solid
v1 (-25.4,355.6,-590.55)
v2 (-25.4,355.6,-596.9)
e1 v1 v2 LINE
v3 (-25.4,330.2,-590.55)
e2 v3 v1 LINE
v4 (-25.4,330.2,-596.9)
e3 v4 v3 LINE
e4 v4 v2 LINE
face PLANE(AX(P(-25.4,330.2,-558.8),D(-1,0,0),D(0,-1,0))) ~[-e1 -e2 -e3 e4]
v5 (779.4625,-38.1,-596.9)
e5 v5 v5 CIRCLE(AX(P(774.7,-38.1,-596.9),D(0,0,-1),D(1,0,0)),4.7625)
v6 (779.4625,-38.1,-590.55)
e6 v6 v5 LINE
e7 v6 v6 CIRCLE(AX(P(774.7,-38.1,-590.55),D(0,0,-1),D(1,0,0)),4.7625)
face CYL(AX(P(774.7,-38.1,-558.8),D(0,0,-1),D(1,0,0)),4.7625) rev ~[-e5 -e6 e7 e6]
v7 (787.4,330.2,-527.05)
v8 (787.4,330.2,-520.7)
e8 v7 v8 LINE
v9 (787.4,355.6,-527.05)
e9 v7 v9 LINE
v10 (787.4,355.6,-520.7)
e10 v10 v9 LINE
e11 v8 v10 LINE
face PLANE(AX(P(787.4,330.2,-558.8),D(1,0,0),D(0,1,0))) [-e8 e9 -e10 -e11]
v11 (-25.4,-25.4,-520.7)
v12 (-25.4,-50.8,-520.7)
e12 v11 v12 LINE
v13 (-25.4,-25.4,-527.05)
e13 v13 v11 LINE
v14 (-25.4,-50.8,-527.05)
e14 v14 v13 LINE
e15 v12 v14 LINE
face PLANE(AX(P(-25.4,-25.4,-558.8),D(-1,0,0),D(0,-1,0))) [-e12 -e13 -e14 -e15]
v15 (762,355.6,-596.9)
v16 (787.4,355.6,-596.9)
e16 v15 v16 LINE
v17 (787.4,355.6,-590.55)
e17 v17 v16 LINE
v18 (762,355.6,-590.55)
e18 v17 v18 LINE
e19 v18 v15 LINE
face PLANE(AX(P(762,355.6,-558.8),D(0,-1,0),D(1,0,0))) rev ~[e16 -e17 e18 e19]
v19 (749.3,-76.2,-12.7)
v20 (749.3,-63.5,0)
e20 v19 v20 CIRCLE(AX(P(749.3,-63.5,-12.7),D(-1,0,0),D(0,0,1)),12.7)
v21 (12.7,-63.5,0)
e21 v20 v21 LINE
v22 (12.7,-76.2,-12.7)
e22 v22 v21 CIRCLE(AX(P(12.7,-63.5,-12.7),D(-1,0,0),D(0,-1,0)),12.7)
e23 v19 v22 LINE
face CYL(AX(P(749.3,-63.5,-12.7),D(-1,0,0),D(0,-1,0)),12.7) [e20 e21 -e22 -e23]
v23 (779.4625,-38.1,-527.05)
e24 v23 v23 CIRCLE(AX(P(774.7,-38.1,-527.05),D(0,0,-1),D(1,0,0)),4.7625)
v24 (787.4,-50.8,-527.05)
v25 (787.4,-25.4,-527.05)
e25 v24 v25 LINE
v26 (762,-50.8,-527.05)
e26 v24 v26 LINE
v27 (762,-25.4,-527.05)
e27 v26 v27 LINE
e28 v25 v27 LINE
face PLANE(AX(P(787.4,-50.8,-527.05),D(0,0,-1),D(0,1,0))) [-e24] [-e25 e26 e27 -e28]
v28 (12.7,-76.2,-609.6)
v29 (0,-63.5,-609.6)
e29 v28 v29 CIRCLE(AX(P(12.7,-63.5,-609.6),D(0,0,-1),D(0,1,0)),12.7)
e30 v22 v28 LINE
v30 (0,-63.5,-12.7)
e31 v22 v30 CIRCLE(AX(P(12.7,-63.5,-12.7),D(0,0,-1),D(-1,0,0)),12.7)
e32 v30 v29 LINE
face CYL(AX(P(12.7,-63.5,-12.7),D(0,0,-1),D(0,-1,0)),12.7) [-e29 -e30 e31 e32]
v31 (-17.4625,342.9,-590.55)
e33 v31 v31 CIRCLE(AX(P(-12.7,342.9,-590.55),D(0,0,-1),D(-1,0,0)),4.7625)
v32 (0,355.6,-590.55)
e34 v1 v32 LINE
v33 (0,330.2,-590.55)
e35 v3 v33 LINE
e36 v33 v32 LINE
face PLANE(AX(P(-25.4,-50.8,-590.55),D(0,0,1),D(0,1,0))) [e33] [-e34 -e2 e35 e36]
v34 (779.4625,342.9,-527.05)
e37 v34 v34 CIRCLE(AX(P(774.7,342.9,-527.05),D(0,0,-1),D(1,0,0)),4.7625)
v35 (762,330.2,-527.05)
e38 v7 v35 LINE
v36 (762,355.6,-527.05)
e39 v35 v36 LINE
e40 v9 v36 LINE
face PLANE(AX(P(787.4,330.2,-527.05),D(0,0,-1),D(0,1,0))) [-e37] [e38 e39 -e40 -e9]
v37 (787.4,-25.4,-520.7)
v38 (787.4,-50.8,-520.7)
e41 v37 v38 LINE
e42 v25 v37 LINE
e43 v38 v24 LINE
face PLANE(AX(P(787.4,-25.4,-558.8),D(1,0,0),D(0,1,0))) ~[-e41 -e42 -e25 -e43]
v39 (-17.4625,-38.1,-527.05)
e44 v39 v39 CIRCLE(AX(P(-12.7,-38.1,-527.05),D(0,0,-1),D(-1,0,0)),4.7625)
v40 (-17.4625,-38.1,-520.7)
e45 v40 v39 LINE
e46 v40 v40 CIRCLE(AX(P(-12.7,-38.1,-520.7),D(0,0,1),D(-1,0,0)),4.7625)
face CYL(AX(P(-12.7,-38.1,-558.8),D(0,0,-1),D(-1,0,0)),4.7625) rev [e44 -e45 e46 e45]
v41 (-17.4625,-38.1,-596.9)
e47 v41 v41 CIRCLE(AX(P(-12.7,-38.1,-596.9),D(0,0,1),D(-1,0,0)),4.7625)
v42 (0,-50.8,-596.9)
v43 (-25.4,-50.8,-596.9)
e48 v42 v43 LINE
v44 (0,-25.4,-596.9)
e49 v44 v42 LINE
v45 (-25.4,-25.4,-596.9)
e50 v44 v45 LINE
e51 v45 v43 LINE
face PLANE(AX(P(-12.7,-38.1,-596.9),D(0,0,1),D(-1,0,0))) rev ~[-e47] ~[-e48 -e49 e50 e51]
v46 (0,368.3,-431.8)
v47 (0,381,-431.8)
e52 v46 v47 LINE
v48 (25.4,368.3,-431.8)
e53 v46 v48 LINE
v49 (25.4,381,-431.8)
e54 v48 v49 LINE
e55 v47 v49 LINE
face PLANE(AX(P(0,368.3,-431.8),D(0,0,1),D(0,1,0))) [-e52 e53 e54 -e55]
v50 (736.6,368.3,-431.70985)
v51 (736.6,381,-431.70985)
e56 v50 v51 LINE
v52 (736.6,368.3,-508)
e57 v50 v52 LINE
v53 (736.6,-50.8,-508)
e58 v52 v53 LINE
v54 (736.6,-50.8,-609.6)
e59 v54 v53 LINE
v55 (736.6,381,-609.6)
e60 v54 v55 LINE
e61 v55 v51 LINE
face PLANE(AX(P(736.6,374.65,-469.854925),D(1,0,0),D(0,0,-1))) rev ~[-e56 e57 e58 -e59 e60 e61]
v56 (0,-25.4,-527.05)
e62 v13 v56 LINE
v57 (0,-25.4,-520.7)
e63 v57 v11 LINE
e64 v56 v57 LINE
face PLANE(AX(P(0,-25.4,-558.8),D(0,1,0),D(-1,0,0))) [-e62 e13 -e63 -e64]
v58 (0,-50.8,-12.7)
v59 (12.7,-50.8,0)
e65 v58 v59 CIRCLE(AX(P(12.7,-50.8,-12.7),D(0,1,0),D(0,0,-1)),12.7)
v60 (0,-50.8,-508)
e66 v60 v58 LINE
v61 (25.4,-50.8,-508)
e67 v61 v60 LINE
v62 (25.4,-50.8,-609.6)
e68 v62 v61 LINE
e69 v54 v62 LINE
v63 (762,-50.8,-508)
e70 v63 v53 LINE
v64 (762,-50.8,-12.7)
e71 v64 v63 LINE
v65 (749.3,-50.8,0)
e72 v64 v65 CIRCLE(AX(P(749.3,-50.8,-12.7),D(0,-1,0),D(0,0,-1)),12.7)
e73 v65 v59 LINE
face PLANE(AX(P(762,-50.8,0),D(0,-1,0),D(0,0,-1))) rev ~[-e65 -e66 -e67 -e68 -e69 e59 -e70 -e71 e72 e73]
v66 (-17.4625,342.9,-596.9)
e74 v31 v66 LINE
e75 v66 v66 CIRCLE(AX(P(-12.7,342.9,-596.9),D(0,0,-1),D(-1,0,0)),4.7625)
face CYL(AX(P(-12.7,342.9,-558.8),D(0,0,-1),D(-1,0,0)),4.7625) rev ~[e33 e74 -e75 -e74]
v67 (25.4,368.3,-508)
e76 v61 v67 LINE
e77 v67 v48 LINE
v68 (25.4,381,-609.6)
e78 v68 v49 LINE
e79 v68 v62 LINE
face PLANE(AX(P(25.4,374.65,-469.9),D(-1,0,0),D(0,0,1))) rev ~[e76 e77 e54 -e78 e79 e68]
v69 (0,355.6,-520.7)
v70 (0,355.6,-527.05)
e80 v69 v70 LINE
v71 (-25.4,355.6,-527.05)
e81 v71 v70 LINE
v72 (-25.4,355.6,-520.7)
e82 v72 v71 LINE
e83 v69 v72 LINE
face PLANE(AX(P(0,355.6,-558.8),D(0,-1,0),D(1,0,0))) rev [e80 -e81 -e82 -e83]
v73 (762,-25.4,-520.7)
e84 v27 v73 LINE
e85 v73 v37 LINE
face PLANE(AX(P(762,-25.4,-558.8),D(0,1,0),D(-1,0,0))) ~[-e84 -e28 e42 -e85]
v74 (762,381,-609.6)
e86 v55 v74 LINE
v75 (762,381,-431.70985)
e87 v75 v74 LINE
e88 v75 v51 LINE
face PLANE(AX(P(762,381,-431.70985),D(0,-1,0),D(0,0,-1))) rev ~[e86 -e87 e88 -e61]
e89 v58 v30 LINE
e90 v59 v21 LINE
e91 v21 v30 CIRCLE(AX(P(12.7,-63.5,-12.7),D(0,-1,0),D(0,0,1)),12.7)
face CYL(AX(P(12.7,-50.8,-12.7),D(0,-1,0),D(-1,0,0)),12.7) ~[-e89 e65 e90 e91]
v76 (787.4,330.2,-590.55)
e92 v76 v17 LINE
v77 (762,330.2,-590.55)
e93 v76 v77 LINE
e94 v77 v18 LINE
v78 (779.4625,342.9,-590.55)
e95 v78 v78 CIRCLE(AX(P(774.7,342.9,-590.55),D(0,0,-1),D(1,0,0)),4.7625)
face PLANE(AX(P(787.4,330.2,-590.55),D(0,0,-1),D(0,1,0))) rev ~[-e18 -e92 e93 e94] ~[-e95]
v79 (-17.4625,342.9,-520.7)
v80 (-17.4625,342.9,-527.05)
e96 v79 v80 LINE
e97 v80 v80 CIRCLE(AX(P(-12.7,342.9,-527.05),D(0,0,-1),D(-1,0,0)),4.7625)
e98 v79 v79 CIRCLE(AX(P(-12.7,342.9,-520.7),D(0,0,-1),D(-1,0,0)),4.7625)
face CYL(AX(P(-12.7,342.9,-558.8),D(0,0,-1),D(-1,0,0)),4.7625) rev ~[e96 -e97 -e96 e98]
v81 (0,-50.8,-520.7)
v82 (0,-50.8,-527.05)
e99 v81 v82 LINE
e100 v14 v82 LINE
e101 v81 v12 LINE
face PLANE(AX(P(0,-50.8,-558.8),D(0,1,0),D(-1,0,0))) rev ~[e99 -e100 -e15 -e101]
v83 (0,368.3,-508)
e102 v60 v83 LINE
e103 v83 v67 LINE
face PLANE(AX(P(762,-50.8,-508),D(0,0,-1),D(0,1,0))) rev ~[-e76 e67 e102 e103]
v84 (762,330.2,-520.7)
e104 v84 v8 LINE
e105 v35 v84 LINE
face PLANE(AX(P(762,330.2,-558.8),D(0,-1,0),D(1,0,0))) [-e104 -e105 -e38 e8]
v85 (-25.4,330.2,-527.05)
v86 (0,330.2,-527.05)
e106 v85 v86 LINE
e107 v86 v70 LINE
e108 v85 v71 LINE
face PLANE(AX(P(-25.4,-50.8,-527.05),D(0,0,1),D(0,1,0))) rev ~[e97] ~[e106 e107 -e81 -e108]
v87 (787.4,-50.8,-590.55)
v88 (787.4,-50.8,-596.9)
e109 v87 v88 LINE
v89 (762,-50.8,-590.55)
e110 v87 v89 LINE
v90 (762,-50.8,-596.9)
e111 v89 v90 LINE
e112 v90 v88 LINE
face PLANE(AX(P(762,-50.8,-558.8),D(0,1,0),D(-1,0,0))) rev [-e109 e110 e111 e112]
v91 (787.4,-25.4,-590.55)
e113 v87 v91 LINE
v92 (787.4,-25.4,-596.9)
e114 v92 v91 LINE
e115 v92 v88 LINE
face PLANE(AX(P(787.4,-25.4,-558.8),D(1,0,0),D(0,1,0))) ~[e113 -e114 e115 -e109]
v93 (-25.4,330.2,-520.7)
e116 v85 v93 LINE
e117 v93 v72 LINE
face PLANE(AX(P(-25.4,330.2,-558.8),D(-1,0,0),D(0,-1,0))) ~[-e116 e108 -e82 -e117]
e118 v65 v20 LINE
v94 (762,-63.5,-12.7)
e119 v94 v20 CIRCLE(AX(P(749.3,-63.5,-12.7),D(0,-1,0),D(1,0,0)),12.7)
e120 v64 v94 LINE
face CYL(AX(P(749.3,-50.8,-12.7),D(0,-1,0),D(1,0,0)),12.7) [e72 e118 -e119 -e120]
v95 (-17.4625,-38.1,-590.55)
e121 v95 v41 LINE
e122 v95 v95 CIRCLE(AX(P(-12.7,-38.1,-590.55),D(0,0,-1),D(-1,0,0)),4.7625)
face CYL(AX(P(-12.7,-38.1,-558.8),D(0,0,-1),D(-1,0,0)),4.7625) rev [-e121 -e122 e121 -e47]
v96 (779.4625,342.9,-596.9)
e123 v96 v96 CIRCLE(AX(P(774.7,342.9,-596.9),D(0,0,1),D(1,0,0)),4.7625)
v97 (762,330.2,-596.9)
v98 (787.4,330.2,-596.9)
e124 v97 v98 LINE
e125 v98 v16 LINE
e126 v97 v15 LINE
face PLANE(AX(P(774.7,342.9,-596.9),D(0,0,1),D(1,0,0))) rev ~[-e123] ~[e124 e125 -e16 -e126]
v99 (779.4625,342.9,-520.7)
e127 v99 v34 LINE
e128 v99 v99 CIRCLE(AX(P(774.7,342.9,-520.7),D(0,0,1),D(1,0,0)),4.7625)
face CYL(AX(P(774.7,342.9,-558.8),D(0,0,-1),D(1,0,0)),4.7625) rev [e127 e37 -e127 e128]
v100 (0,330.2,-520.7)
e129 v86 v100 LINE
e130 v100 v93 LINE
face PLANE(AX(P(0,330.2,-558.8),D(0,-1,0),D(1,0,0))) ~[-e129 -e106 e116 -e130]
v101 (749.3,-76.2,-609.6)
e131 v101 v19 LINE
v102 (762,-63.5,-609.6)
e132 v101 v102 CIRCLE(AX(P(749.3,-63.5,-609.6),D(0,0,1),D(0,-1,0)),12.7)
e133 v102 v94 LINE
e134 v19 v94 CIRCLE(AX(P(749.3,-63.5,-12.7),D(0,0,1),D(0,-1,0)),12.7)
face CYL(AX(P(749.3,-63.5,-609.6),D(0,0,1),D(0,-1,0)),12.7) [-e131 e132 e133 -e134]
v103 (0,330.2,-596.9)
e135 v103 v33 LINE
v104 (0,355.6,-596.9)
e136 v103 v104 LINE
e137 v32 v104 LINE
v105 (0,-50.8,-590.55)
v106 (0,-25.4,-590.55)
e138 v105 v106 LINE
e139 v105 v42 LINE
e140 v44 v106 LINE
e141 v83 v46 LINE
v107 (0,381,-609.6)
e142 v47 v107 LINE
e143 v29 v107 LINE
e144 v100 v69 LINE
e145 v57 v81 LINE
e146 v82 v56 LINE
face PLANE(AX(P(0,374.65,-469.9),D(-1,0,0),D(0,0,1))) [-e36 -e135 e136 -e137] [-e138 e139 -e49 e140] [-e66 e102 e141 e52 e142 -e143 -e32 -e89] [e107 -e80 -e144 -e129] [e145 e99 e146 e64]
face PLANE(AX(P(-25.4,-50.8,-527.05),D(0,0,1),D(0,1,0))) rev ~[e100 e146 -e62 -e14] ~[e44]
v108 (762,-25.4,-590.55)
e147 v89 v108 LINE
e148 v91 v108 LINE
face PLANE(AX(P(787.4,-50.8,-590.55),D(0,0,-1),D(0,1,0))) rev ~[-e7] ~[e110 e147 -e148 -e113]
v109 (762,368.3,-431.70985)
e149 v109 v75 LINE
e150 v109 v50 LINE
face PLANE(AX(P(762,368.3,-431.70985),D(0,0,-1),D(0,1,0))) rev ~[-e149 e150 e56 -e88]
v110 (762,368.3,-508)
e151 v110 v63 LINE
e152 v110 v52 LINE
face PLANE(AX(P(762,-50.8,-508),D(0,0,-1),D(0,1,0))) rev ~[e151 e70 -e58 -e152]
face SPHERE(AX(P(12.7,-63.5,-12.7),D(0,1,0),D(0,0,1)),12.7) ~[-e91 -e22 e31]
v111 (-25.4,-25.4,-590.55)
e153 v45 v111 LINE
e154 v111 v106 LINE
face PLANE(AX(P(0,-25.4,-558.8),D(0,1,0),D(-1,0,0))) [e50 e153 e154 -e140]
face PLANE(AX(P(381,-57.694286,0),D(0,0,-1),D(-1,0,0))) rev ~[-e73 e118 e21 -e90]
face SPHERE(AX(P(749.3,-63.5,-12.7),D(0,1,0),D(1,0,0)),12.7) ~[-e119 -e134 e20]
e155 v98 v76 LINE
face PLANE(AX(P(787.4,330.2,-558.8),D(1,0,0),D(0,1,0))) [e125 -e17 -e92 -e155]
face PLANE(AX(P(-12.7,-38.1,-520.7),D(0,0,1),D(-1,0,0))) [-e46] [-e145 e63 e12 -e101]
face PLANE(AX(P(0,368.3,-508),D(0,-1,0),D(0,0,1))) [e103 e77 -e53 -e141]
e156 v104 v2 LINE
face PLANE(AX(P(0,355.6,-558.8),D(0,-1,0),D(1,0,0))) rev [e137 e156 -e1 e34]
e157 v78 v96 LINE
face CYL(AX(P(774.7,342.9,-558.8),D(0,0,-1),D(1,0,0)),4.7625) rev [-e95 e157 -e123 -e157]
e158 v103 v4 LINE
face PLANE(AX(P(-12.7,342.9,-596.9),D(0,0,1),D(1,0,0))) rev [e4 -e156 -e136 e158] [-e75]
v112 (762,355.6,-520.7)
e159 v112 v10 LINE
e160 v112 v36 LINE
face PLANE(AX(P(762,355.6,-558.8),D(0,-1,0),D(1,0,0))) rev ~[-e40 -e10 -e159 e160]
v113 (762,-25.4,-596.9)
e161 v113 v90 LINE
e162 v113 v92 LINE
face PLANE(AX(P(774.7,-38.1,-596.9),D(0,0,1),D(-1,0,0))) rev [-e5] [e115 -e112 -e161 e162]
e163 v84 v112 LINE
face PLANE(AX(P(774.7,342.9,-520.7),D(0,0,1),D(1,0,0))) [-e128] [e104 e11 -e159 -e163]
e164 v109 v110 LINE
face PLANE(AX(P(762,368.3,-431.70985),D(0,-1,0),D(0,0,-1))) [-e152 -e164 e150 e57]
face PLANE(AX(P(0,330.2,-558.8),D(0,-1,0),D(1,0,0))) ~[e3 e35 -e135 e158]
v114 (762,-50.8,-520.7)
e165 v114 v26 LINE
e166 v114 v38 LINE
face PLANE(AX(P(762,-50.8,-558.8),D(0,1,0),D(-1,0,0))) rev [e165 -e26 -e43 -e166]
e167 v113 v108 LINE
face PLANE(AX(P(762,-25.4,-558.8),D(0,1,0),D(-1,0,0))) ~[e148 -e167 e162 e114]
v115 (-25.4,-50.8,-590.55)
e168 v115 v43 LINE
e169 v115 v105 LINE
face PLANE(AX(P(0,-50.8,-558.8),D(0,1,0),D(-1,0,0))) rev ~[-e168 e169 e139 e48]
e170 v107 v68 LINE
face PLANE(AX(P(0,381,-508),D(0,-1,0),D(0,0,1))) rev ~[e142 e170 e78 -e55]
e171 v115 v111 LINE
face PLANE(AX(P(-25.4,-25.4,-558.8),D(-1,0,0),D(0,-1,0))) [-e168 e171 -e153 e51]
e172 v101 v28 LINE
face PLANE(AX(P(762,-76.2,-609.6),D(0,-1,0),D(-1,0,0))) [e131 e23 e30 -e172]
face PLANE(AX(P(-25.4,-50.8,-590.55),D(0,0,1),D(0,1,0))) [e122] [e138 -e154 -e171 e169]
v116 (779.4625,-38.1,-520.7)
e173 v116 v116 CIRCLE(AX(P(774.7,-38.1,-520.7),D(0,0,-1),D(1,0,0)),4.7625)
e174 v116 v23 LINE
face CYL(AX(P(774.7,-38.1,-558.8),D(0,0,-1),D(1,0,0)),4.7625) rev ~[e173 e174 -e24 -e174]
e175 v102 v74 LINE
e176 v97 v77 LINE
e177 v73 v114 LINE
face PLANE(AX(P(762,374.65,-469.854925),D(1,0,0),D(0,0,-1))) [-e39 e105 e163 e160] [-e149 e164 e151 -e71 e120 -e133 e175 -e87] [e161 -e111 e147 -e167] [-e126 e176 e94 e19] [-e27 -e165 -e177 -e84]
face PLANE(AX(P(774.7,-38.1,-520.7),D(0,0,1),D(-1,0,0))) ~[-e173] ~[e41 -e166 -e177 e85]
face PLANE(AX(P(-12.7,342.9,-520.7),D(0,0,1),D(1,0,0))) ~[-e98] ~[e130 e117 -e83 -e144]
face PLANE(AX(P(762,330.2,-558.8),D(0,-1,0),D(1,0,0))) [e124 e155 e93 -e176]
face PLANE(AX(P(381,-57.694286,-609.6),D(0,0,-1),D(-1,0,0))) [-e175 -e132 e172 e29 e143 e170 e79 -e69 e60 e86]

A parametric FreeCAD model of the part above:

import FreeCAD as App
import Part
import Sketcher
from FreeCAD import Vector
Q = App.Units.Quantity


def edges_at(feature, points):
    """Names of the edges that pass closest to the given points."""
    edges = feature.Shape.Edges
    near = lambda p: min(range(len(edges)), key=lambda i: edges[i].distToShape(Part.Vertex(*p))[0])
    return sorted({f"Edge{near(p) + 1}" for p in points})

doc = App.newDocument("Part")
body = doc.addObject("PartDesign::Body", "Body")

# Sketch on XY plane
sketch1 = doc.addObject("Sketcher::SketchObject", "Sketch")
body.addObject(sketch1)
sketch1.AttachmentSupport = (doc.XY_Plane, [""])
sketch1.MapMode = "FlatFace"
sketch1.addGeometry([
    Part.LineSegment(Vector(0, 381, 0), Vector(0, 0, 0)),
    Part.LineSegment(Vector(0, 0, 0), Vector(762, 0, 0)),
    Part.LineSegment(Vector(762, 0, 0), Vector(762, 381, 0)),
    Part.LineSegment(Vector(762, 381, 0), Vector(0, 381, 0)),
], False)
sketch1.addConstraint([
    Sketcher.Constraint("Coincident", 0, 2, 1, 1),
    Sketcher.Constraint("Coincident", 1, 2, 2, 1),
    Sketcher.Constraint("Coincident", 2, 2, 3, 1),
    Sketcher.Constraint("Coincident", 3, 2, 0, 1),
    Sketcher.Constraint("Vertical", 0),
    Sketcher.Constraint("Horizontal", 1),
    Sketcher.Constraint("Vertical", 2),
    Sketcher.Constraint("Horizontal", 3),
    Sketcher.Constraint("Coincident", 0, 2, -1, 1),
    Sketcher.Constraint("DistanceX", 1, 1, 1, 2, Q("30 in")),
    Sketcher.Constraint("DistanceY", 0, 2, 0, 1, Q("15 in")),
])
pad1 = doc.addObject("PartDesign::Pad", "Pad")
body.addObject(pad1)
pad1.Profile = sketch1
pad1.Length = Q("24 in")
pad1.Reversed = True

# Sketch on XY plane
sketch2 = doc.addObject("Sketcher::SketchObject", "Sketch001")
body.addObject(sketch2)
sketch2.AttachmentSupport = (doc.XY_Plane, [""])
sketch2.MapMode = "FlatFace"
sketch2.AttachmentOffset = App.Placement(Vector(0, 0, -24 * 25.4), App.Rotation())
sketch2.addGeometry([
    Part.LineSegment(Vector(737, 356, 0), Vector(737, 25, 0)),
    Part.LineSegment(Vector(737, 25, 0), Vector(25, 25, 0)),
    Part.LineSegment(Vector(25, 25, 0), Vector(25, 356, 0)),
    Part.LineSegment(Vector(25, 356, 0), Vector(737, 356, 0)),
], False)
sketch2.addConstraint([
    Sketcher.Constraint("Coincident", 0, 2, 1, 1),
    Sketcher.Constraint("Coincident", 1, 2, 2, 1),
    Sketcher.Constraint("Coincident", 2, 2, 3, 1),
    Sketcher.Constraint("Coincident", 3, 2, 0, 1),
    Sketcher.Constraint("Vertical", 0),
    Sketcher.Constraint("Horizontal", 1),
    Sketcher.Constraint("Vertical", 2),
    Sketcher.Constraint("Horizontal", 3),
    Sketcher.Constraint("DistanceX", 1, 2, 1, 1, Q("28 in")),
    Sketcher.Constraint("DistanceY", 0, 2, 0, 1, Q("13 in")),
    Sketcher.Constraint("DistanceX", -1, 1, 0, 2, Q("29 in")),
    Sketcher.Constraint("DistanceY", -1, 1, 0, 2, Q("1 in")),
])
pocket1 = doc.addObject("PartDesign::Pocket", "Pocket")
body.addObject(pocket1)
pocket1.Profile = sketch2
pocket1.Length = Q("23 in")
pocket1.Reversed = True

# Sketch on XY plane
sketch3 = doc.addObject("Sketcher::SketchObject", "Sketch002")
body.addObject(sketch3)
sketch3.AttachmentSupport = (doc.XY_Plane, [""])
sketch3.MapMode = "FlatFace"
sketch3.AttachmentOffset = App.Placement(Vector(0, 0, -22 * 25.4), App.Rotation())
sketch3.addGeometry([
    Part.LineSegment(Vector(762, 355.6, 0), Vector(762, 330.2, 0)),  # 0
    Part.LineSegment(Vector(762, 330.2, 0), Vector(787.4, 330.2, 0)),  # 1
    Part.LineSegment(Vector(787.4, 330.2, 0), Vector(787.4, 355.6, 0)),  # 2
    Part.LineSegment(Vector(787.4, 355.6, 0), Vector(762, 355.6, 0)),  # 3
    Part.Circle(Vector(774.7, 342.9, 0), Vector(0, 0, 1), 4.8),  # 4
], False)
sketch3.addConstraint([
    Sketcher.Constraint("Coincident", 0, 2, 1, 1),
    Sketcher.Constraint("Coincident", 1, 2, 2, 1),
    Sketcher.Constraint("Coincident", 2, 2, 3, 1),
    Sketcher.Constraint("Coincident", 3, 2, 0, 1),
    Sketcher.Constraint("Vertical", 0),
    Sketcher.Constraint("Horizontal", 1),
    Sketcher.Constraint("Vertical", 2),
    Sketcher.Constraint("Horizontal", 3),
    Sketcher.Constraint("Equal", 3, 0),
    Sketcher.Constraint("DistanceX", 1, 1, 1, 2, Q("1 in")),
    Sketcher.Constraint("Diameter", 4, Q("0.375 in")),
    Sketcher.Constraint("DistanceX", -1, 1, 0, 2, Q("30 in")),
    Sketcher.Constraint("DistanceY", -1, 1, 0, 2, Q("13 in")),
    Sketcher.Constraint("DistanceX", -1, 1, 4, 3, Q("30.5 in")),
    Sketcher.Constraint("DistanceY", -1, 1, 4, 3, Q("13.5 in")),
])
pad2 = doc.addObject("PartDesign::Pad", "Pad001")
body.addObject(pad2)
pad2.Profile = sketch3
pad2.Length = Q("3 in")
pad2.Midplane = True

# Sketch on YZ plane
sketch4 = doc.addObject("Sketcher::SketchObject", "Sketch003")
body.addObject(sketch4)
sketch4.AttachmentSupport = (doc.YZ_Plane, [""])
sketch4.MapMode = "FlatFace"
sketch4.AttachmentOffset = App.Placement(Vector(0, 0, 31 * 25.4), App.Rotation())
sketch4.addGeometry([
    Part.LineSegment(Vector(356, -527, 0), Vector(330, -527, 0)),
    Part.LineSegment(Vector(330, -527, 0), Vector(330, -591, 0)),
    Part.LineSegment(Vector(330, -591, 0), Vector(356, -591, 0)),
    Part.LineSegment(Vector(356, -591, 0), Vector(356, -527, 0)),
], False)
sketch4.addConstraint([
    Sketcher.Constraint("Coincident", 0, 2, 1, 1),
    Sketcher.Constraint("Coincident", 1, 2, 2, 1),
    Sketcher.Constraint("Coincident", 2, 2, 3, 1),
    Sketcher.Constraint("Coincident", 3, 2, 0, 1),
    Sketcher.Constraint("Horizontal", 0),
    Sketcher.Constraint("Vertical", 1),
    Sketcher.Constraint("Horizontal", 2),
    Sketcher.Constraint("Vertical", 3),
    Sketcher.Constraint("DistanceX", 0, 2, 0, 1, Q("1 in")),
    Sketcher.Constraint("DistanceY", 1, 2, 1, 1, Q("2.5 in")),
    Sketcher.Constraint("DistanceX", -1, 1, 0, 2, Q("13 in")),
    Sketcher.Constraint("DistanceY", 0, 2, -1, 1, Q("20.75 in")),
])
pocket2 = doc.addObject("PartDesign::Pocket", "Pocket001")
body.addObject(pocket2)
pocket2.Profile = sketch4
pocket2.Length = Q("1 in")

# Sketch on XY plane
sketch5 = doc.addObject("Sketcher::SketchObject", "Sketch004")
body.addObject(sketch5)
sketch5.AttachmentSupport = (doc.XY_Plane, [""])
sketch5.MapMode = "FlatFace"
sketch5.AttachmentOffset = App.Placement(Vector(0, 0, -24 * 25.4), App.Rotation())
sketch5.addGeometry([
    Part.LineSegment(Vector(737, 381, 0), Vector(737, 356, 0)),
    Part.LineSegment(Vector(737, 356, 0), Vector(25, 356, 0)),
    Part.LineSegment(Vector(25, 356, 0), Vector(25, 381, 0)),
    Part.LineSegment(Vector(25, 381, 0), Vector(737, 381, 0)),
], False)
sketch5.addConstraint([
    Sketcher.Constraint("Coincident", 0, 2, 1, 1),
    Sketcher.Constraint("Coincident", 1, 2, 2, 1),
    Sketcher.Constraint("Coincident", 2, 2, 3, 1),
    Sketcher.Constraint("Coincident", 3, 2, 0, 1),
    Sketcher.Constraint("Vertical", 0),
    Sketcher.Constraint("Horizontal", 1),
    Sketcher.Constraint("Vertical", 2),
    Sketcher.Constraint("Horizontal", 3),
    Sketcher.Constraint("DistanceX", 1, 2, 1, 1, Q("28 in")),
    Sketcher.Constraint("DistanceY", 0, 2, 0, 1, Q("1 in")),
    Sketcher.Constraint("DistanceX", -1, 1, 0, 2, Q("29 in")),
    Sketcher.Constraint("DistanceY", -1, 1, 0, 2, Q("14 in")),
])
pocket3 = doc.addObject("PartDesign::Pocket", "Pocket002")
body.addObject(pocket3)
pocket3.Profile = sketch5
pocket3.Length = Q("16 in")
pocket3.Reversed = True

# Sketch on XY plane
sketch6 = doc.addObject("Sketcher::SketchObject", "Sketch005")
body.addObject(sketch6)
sketch6.AttachmentSupport = (doc.XY_Plane, [""])
sketch6.MapMode = "FlatFace"
sketch6.AttachmentOffset = App.Placement(Vector(0, 0, -24 * 25.4), App.Rotation())
sketch6.addGeometry([
    Part.LineSegment(Vector(762, 0, 0), Vector(762, -76, 0)),
    Part.LineSegment(Vector(762, -76, 0), Vector(0, -76, 0)),
    Part.LineSegment(Vector(0, -76, 0), Vector(0, 0, 0)),
    Part.LineSegment(Vector(0, 0, 0), Vector(762, 0, 0)),
], False)
sketch6.addConstraint([
    Sketcher.Constraint("Coincident", 0, 2, 1, 1),
    Sketcher.Constraint("Coincident", 1, 2, 2, 1),
    Sketcher.Constraint("Coincident", 2, 2, 3, 1),
    Sketcher.Constraint("Coincident", 3, 2, 0, 1),
    Sketcher.Constraint("Vertical", 0),
    Sketcher.Constraint("Horizontal", 1),
    Sketcher.Constraint("Vertical", 2),
    Sketcher.Constraint("Horizontal", 3),
    Sketcher.Constraint("Coincident", 2, 2, -1, 1),
    Sketcher.Constraint("DistanceX", 1, 2, 1, 1, Q("30 in")),
    Sketcher.Constraint("DistanceY", 0, 2, 0, 1, Q("3 in")),
])
pad3 = doc.addObject("PartDesign::Pad", "Pad002")
body.addObject(pad3)
pad3.Profile = sketch6
pad3.Length = Q("24 in")

# Sketch on XY plane
sketch7 = doc.addObject("Sketcher::SketchObject", "Sketch006")
body.addObject(sketch7)
sketch7.AttachmentSupport = (doc.XY_Plane, [""])
sketch7.MapMode = "FlatFace"
sketch7.AttachmentOffset = App.Placement(Vector(0, 0, -24 * 25.4), App.Rotation())
sketch7.addGeometry([
    Part.LineSegment(Vector(737, 25, 0), Vector(737, -51, 0)),
    Part.LineSegment(Vector(737, -51, 0), Vector(25, -51, 0)),
    Part.LineSegment(Vector(25, -51, 0), Vector(25, 25, 0)),
    Part.LineSegment(Vector(25, 25, 0), Vector(737, 25, 0)),
], False)
sketch7.addConstraint([
    Sketcher.Constraint("Coincident", 0, 2, 1, 1),
    Sketcher.Constraint("Coincident", 1, 2, 2, 1),
    Sketcher.Constraint("Coincident", 2, 2, 3, 1),
    Sketcher.Constraint("Coincident", 3, 2, 0, 1),
    Sketcher.Constraint("Vertical", 0),
    Sketcher.Constraint("Horizontal", 1),
    Sketcher.Constraint("Vertical", 2),
    Sketcher.Constraint("Horizontal", 3),
    Sketcher.Constraint("DistanceX", 1, 2, 1, 1, Q("28 in")),
    Sketcher.Constraint("DistanceY", 0, 2, 0, 1, Q("3 in")),
    Sketcher.Constraint("DistanceX", -1, 1, 0, 2, Q("29 in")),
    Sketcher.Constraint("DistanceY", 0, 2, -1, 1, Q("2 in")),
])
pocket4 = doc.addObject("PartDesign::Pocket", "Pocket003")
body.addObject(pocket4)
pocket4.Profile = sketch7
pocket4.Length = Q("23 in")
pocket4.Reversed = True
doc.recompute()

datumplane = doc.addObject("PartDesign::Plane", "DatumPlane")
body.addObject(datumplane)
datumplane.AttachmentSupport = (doc.XZ_Plane, [""])
datumplane.MapMode = "FlatFace"
datumplane.AttachmentOffset = App.Placement(Vector(0, 0, -6 * 25.4), App.Rotation())
mirrored = doc.addObject("PartDesign::Mirrored", "Mirrored")
body.addObject(mirrored)
mirrored.Originals = [pad2]
mirrored.MirrorPlane = (datumplane, [""])
body.Tip = mirrored

# Sketch on YZ plane
sketch8 = doc.addObject("Sketcher::SketchObject", "Sketch007")
body.addObject(sketch8)
sketch8.AttachmentSupport = (doc.YZ_Plane, [""])
sketch8.MapMode = "FlatFace"
sketch8.AttachmentOffset = App.Placement(Vector(0, 0, 31 * 25.4), App.Rotation())
sketch8.addGeometry([
    Part.LineSegment(Vector(-25, -527, 0), Vector(-51, -527, 0)),
    Part.LineSegment(Vector(-51, -527, 0), Vector(-51, -591, 0)),
    Part.LineSegment(Vector(-51, -591, 0), Vector(-25, -591, 0)),
    Part.LineSegment(Vector(-25, -591, 0), Vector(-25, -527, 0)),
], False)
sketch8.addConstraint([
    Sketcher.Constraint("Coincident", 0, 2, 1, 1),
    Sketcher.Constraint("Coincident", 1, 2, 2, 1),
    Sketcher.Constraint("Coincident", 2, 2, 3, 1),
    Sketcher.Constraint("Coincident", 3, 2, 0, 1),
    Sketcher.Constraint("Horizontal", 0),
    Sketcher.Constraint("Vertical", 1),
    Sketcher.Constraint("Horizontal", 2),
    Sketcher.Constraint("Vertical", 3),
    Sketcher.Constraint("DistanceX", 0, 2, 0, 1, Q("1 in")),
    Sketcher.Constraint("DistanceY", 1, 2, 1, 1, Q("2.5 in")),
    Sketcher.Constraint("DistanceX", 0, 2, -1, 1, Q("2 in")),
    Sketcher.Constraint("DistanceY", 0, 2, -1, 1, Q("20.75 in")),
])
pocket5 = doc.addObject("PartDesign::Pocket", "Pocket004")
body.addObject(pocket5)
pocket5.Profile = sketch8
pocket5.Length = Q("1 in")

# Sketch on YZ plane
sketch9 = doc.addObject("Sketcher::SketchObject", "Sketch008")
body.addObject(sketch9)
sketch9.AttachmentSupport = (doc.YZ_Plane, [""])
sketch9.MapMode = "FlatFace"
sketch9.AttachmentOffset = App.Placement(Vector(0, 0, 30 * 25.4), App.Rotation())
sketch9.addGeometry([
    Part.LineSegment(Vector(356, 0, 0), Vector(-51, 0, 0)),
    Part.LineSegment(Vector(-51, 0, 0), Vector(-51, -508, 0)),
    Part.LineSegment(Vector(-51, -508, 0), Vector(356, -508, 0)),
    Part.LineSegment(Vector(356, -508, 0), Vector(356, 0, 0)),
], False)
sketch9.addConstraint([
    Sketcher.Constraint("Coincident", 0, 2, 1, 1),
    Sketcher.Constraint("Coincident", 1, 2, 2, 1),
    Sketcher.Constraint("Coincident", 2, 2, 3, 1),
    Sketcher.Constraint("Coincident", 3, 2, 0, 1),
    Sketcher.Constraint("Horizontal", 0),
    Sketcher.Constraint("Vertical", 1),
    Sketcher.Constraint("Horizontal", 2),
    Sketcher.Constraint("Vertical", 3),
    Sketcher.Constraint("PointOnObject", 0, 2, -1),
    Sketcher.Constraint("DistanceX", 0, 2, 0, 1, Q("16 in")),
    Sketcher.Constraint("DistanceY", 1, 2, 1, 1, Q("20 in")),
    Sketcher.Constraint("DistanceX", 0, 2, -1, 1, Q("2 in")),
])
pocket6 = doc.addObject("PartDesign::Pocket", "Pocket005")
body.addObject(pocket6)
pocket6.Profile = sketch9
pocket6.Type = "ThroughAll"
doc.recompute()

fillet = doc.addObject("PartDesign::Fillet", "Fillet")
body.addObject(fillet)
fillet.Base = (pocket6, edges_at(pocket6, [(762, -63.5, 0)]))
fillet.Radius = Q("0.5 in")

# Sketch on YZ plane
sketch10 = doc.addObject("Sketcher::SketchObject", "Sketch009")
body.addObject(sketch10)
sketch10.AttachmentSupport = (doc.YZ_Plane, [""])
sketch10.MapMode = "FlatFace"
sketch10.AttachmentOffset = App.Placement(Vector(0, 0, 30 * 25.4), App.Rotation())
sketch10.addGeometry([
    Part.LineSegment(Vector(381, 0, 0), Vector(356, 0, 0)),
    Part.LineSegment(Vector(356, 0, 0), Vector(356, -508, 0)),
    Part.LineSegment(Vector(356, -508, 0), Vector(381, -508, 0)),
    Part.LineSegment(Vector(381, -508, 0), Vector(381, 0, 0)),
], False)
sketch10.addConstraint([
    Sketcher.Constraint("Coincident", 0, 2, 1, 1),
    Sketcher.Constraint("Coincident", 1, 2, 2, 1),
    Sketcher.Constraint("Coincident", 2, 2, 3, 1),
    Sketcher.Constraint("Coincident", 3, 2, 0, 1),
    Sketcher.Constraint("Horizontal", 0),
    Sketcher.Constraint("Vertical", 1),
    Sketcher.Constraint("Horizontal", 2),
    Sketcher.Constraint("Vertical", 3),
    Sketcher.Constraint("PointOnObject", 0, 2, -1),
    Sketcher.Constraint("DistanceX", 0, 2, 0, 1, Q("1 in")),
    Sketcher.Constraint("DistanceY", 1, 2, 1, 1, Q("20 in")),
    Sketcher.Constraint("DistanceX", -1, 1, 0, 2, Q("14 in")),
])
pocket7 = doc.addObject("PartDesign::Pocket", "Pocket006")
body.addObject(pocket7)
pocket7.Profile = sketch10
pocket7.Type = "ThroughAll"

# Sketch on YZ plane
sketch11 = doc.addObject("Sketcher::SketchObject", "Sketch010")
body.addObject(sketch11)
sketch11.AttachmentSupport = (doc.YZ_Plane, [""])
sketch11.MapMode = "FlatFace"
sketch11.AttachmentOffset = App.Placement(Vector(0, 0, 30 * 25.4), App.Rotation())
sketch11.addGeometry([
    Part.LineSegment(Vector(381, -432, 0), Vector(368, -432, 0)),
    Part.LineSegment(Vector(368, -432, 0), Vector(368, -508, 0)),
    Part.LineSegment(Vector(368, -508, 0), Vector(381, -508, 0)),
    Part.LineSegment(Vector(381, -508, 0), Vector(381, -432, 0)),
], False)
sketch11.addConstraint([
    Sketcher.Constraint("Coincident", 0, 2, 1, 1),
    Sketcher.Constraint("Coincident", 1, 2, 2, 1),
    Sketcher.Constraint("Coincident", 2, 2, 3, 1),
    Sketcher.Constraint("Coincident", 3, 2, 0, 1),
    Sketcher.Constraint("Horizontal", 0),
    Sketcher.Constraint("Vertical", 1),
    Sketcher.Constraint("Horizontal", 2),
    Sketcher.Constraint("Vertical", 3),
    Sketcher.Constraint("DistanceX", 0, 2, 0, 1, Q("0.5 in")),
    Sketcher.Constraint("DistanceY", 1, 2, -1, 1, Q("20 in")),
    Sketcher.Constraint("DistanceX", -1, 1, 2, 2, Q("15 in")),
    Sketcher.Constraint("DistanceY", 1, 2, 1, 1, Q("76.29015 mm")),
])
pad4 = doc.addObject("PartDesign::Pad", "Pad003")
body.addObject(pad4)
pad4.Profile = sketch11
pad4.Length = Q("1 in")
pad4.Reversed = True

# Sketch on YZ plane
sketch12 = doc.addObject("Sketcher::SketchObject", "Sketch011")
body.addObject(sketch12)
sketch12.AttachmentSupport = (doc.YZ_Plane, [""])
sketch12.MapMode = "FlatFace"
sketch12.addGeometry([
    Part.LineSegment(Vector(381, -508, 0), Vector(368, -508, 0)),
    Part.LineSegment(Vector(368, -508, 0), Vector(368, -432, 0)),
    Part.LineSegment(Vector(368, -432, 0), Vector(381, -432, 0)),
    Part.LineSegment(Vector(381, -432, 0), Vector(381, -508, 0)),
], False)
sketch12.addConstraint([
    Sketcher.Constraint("Coincident", 0, 2, 1, 1),
    Sketcher.Constraint("Coincident", 1, 2, 2, 1),
    Sketcher.Constraint("Coincident", 2, 2, 3, 1),
    Sketcher.Constraint("Coincident", 3, 2, 0, 1),
    Sketcher.Constraint("Horizontal", 0),
    Sketcher.Constraint("Vertical", 1),
    Sketcher.Constraint("Horizontal", 2),
    Sketcher.Constraint("Vertical", 3),
    Sketcher.Constraint("DistanceY", 1, 1, 1, 2, Q("3 in")),
    Sketcher.Constraint("DistanceX", 0, 2, 0, 1, Q("0.5 in")),
    Sketcher.Constraint("DistanceY", 0, 2, -1, 1, Q("20 in")),
    Sketcher.Constraint("DistanceX", -1, 1, 2, 2, Q("15 in")),
])
pad5 = doc.addObject("PartDesign::Pad", "Pad004")
body.addObject(pad5)
pad5.Profile = sketch12
pad5.Length = Q("1 in")
doc.recompute()

datumplane2 = doc.addObject("PartDesign::Plane", "DatumPlane001")
body.addObject(datumplane2)
datumplane2.AttachmentSupport = (doc.YZ_Plane, [""])
datumplane2.MapMode = "FlatFace"
datumplane2.AttachmentOffset = App.Placement(Vector(0, 0, 15 * 25.4), App.Rotation())
mirrored2 = doc.addObject("PartDesign::Mirrored", "Mirrored001")
body.addObject(mirrored2)
mirrored2.Originals = [pad2]
mirrored2.MirrorPlane = (datumplane2, [""])
body.Tip = mirrored2

# Sketch on XY plane
sketch13 = doc.addObject("Sketcher::SketchObject", "Sketch012")
body.addObject(sketch13)
sketch13.AttachmentSupport = (doc.XY_Plane, [""])
sketch13.MapMode = "FlatFace"
sketch13.AttachmentOffset = App.Placement(Vector(0, 0, -22 * 25.4), App.Rotation())
sketch13.addGeometry([
    Part.LineSegment(Vector(0, -50.8, 0), Vector(0, -25.4, 0)),  # 0
    Part.LineSegment(Vector(0, -25.4, 0), Vector(-25.4, -25.4, 0)),  # 1
    Part.LineSegment(Vector(-25.4, -25.4, 0), Vector(-25.4, -50.8, 0)),  # 2
    Part.LineSegment(Vector(-25.4, -50.8, 0), Vector(0, -50.8, 0)),  # 3
    Part.Circle(Vector(-12.7, -38.1, 0), Vector(0, 0, 1), 4.8),  # 4
], False)
sketch13.addConstraint([
    Sketcher.Constraint("Coincident", 0, 2, 1, 1),
    Sketcher.Constraint("Coincident", 1, 2, 2, 1),
    Sketcher.Constraint("Coincident", 2, 2, 3, 1),
    Sketcher.Constraint("Coincident", 3, 2, 0, 1),
    Sketcher.Constraint("Vertical", 0),
    Sketcher.Constraint("Horizontal", 1),
    Sketcher.Constraint("Vertical", 2),
    Sketcher.Constraint("Horizontal", 3),
    Sketcher.Constraint("PointOnObject", 0, 2, -2),
    Sketcher.Constraint("Equal", 3, 0),
    Sketcher.Constraint("DistanceX", 1, 2, 1, 1, Q("1 in")),
    Sketcher.Constraint("Diameter", 4, Q("0.375 in")),
    Sketcher.Constraint("DistanceY", 0, 2, -1, 1, Q("1 in")),
    Sketcher.Constraint("DistanceX", 4, 3, -1, 1, Q("0.5 in")),
    Sketcher.Constraint("DistanceY", 4, 3, -1, 1, Q("1.5 in")),
])
pad6 = doc.addObject("PartDesign::Pad", "Pad005")
body.addObject(pad6)
pad6.Profile = sketch13
pad6.Length = Q("3 in")
pad6.Midplane = True

# Sketch on YZ plane
sketch14 = doc.addObject("Sketcher::SketchObject", "Sketch013")
body.addObject(sketch14)
sketch14.AttachmentSupport = (doc.YZ_Plane, [""])
sketch14.MapMode = "FlatFace"
sketch14.AttachmentOffset = App.Placement(Vector(0, 0, -1 * 25.4), App.Rotation())
sketch14.addGeometry([
    Part.LineSegment(Vector(356, -591, 0), Vector(-51, -591, 0)),
    Part.LineSegment(Vector(-51, -591, 0), Vector(-51, -527, 0)),
    Part.LineSegment(Vector(-51, -527, 0), Vector(356, -527, 0)),
    Part.LineSegment(Vector(356, -527, 0), Vector(356, -591, 0)),
], False)
sketch14.addConstraint([
    Sketcher.Constraint("Coincident", 0, 2, 1, 1),
    Sketcher.Constraint("Coincident", 1, 2, 2, 1),
    Sketcher.Constraint("Coincident", 2, 2, 3, 1),
    Sketcher.Constraint("Coincident", 3, 2, 0, 1),
    Sketcher.Constraint("Horizontal", 0),
    Sketcher.Constraint("Vertical", 1),
    Sketcher.Constraint("Horizontal", 2),
    Sketcher.Constraint("Vertical", 3),
    Sketcher.Constraint("DistanceX", 0, 2, 0, 1, Q("16 in")),
    Sketcher.Constraint("DistanceY", 1, 1, 1, 2, Q("2.5 in")),
    Sketcher.Constraint("DistanceX", 0, 2, -1, 1, Q("2 in")),
    Sketcher.Constraint("DistanceY", 0, 2, -1, 1, Q("23.25 in")),
])
pocket8 = doc.addObject("PartDesign::Pocket", "Pocket007")
body.addObject(pocket8)
pocket8.Profile = sketch14
pocket8.Length = Q("1 in")
pocket8.Reversed = True
doc.recompute()

fillet2 = doc.addObject("PartDesign::Fillet", "Fillet001")
body.addObject(fillet2)
fillet2.Base = (pocket8, edges_at(pocket8, [(0, -63.5, 0)]))
fillet2.Radius = Q("0.5 in")
doc.recompute()

fillet3 = doc.addObject("PartDesign::Fillet", "Fillet002")
body.addObject(fillet3)
fillet3.Base = (fillet2, edges_at(fillet2, [
    (381, -76.2, 0),
    (762, -76.2, -311.15),
    (758.28, -76.2, -3.72),
    (0, -76.2, -311.15),
    (3.72, -76.2, -3.72),
]))
fillet3.Radius = Q("0.5 in")

doc.recompute()
